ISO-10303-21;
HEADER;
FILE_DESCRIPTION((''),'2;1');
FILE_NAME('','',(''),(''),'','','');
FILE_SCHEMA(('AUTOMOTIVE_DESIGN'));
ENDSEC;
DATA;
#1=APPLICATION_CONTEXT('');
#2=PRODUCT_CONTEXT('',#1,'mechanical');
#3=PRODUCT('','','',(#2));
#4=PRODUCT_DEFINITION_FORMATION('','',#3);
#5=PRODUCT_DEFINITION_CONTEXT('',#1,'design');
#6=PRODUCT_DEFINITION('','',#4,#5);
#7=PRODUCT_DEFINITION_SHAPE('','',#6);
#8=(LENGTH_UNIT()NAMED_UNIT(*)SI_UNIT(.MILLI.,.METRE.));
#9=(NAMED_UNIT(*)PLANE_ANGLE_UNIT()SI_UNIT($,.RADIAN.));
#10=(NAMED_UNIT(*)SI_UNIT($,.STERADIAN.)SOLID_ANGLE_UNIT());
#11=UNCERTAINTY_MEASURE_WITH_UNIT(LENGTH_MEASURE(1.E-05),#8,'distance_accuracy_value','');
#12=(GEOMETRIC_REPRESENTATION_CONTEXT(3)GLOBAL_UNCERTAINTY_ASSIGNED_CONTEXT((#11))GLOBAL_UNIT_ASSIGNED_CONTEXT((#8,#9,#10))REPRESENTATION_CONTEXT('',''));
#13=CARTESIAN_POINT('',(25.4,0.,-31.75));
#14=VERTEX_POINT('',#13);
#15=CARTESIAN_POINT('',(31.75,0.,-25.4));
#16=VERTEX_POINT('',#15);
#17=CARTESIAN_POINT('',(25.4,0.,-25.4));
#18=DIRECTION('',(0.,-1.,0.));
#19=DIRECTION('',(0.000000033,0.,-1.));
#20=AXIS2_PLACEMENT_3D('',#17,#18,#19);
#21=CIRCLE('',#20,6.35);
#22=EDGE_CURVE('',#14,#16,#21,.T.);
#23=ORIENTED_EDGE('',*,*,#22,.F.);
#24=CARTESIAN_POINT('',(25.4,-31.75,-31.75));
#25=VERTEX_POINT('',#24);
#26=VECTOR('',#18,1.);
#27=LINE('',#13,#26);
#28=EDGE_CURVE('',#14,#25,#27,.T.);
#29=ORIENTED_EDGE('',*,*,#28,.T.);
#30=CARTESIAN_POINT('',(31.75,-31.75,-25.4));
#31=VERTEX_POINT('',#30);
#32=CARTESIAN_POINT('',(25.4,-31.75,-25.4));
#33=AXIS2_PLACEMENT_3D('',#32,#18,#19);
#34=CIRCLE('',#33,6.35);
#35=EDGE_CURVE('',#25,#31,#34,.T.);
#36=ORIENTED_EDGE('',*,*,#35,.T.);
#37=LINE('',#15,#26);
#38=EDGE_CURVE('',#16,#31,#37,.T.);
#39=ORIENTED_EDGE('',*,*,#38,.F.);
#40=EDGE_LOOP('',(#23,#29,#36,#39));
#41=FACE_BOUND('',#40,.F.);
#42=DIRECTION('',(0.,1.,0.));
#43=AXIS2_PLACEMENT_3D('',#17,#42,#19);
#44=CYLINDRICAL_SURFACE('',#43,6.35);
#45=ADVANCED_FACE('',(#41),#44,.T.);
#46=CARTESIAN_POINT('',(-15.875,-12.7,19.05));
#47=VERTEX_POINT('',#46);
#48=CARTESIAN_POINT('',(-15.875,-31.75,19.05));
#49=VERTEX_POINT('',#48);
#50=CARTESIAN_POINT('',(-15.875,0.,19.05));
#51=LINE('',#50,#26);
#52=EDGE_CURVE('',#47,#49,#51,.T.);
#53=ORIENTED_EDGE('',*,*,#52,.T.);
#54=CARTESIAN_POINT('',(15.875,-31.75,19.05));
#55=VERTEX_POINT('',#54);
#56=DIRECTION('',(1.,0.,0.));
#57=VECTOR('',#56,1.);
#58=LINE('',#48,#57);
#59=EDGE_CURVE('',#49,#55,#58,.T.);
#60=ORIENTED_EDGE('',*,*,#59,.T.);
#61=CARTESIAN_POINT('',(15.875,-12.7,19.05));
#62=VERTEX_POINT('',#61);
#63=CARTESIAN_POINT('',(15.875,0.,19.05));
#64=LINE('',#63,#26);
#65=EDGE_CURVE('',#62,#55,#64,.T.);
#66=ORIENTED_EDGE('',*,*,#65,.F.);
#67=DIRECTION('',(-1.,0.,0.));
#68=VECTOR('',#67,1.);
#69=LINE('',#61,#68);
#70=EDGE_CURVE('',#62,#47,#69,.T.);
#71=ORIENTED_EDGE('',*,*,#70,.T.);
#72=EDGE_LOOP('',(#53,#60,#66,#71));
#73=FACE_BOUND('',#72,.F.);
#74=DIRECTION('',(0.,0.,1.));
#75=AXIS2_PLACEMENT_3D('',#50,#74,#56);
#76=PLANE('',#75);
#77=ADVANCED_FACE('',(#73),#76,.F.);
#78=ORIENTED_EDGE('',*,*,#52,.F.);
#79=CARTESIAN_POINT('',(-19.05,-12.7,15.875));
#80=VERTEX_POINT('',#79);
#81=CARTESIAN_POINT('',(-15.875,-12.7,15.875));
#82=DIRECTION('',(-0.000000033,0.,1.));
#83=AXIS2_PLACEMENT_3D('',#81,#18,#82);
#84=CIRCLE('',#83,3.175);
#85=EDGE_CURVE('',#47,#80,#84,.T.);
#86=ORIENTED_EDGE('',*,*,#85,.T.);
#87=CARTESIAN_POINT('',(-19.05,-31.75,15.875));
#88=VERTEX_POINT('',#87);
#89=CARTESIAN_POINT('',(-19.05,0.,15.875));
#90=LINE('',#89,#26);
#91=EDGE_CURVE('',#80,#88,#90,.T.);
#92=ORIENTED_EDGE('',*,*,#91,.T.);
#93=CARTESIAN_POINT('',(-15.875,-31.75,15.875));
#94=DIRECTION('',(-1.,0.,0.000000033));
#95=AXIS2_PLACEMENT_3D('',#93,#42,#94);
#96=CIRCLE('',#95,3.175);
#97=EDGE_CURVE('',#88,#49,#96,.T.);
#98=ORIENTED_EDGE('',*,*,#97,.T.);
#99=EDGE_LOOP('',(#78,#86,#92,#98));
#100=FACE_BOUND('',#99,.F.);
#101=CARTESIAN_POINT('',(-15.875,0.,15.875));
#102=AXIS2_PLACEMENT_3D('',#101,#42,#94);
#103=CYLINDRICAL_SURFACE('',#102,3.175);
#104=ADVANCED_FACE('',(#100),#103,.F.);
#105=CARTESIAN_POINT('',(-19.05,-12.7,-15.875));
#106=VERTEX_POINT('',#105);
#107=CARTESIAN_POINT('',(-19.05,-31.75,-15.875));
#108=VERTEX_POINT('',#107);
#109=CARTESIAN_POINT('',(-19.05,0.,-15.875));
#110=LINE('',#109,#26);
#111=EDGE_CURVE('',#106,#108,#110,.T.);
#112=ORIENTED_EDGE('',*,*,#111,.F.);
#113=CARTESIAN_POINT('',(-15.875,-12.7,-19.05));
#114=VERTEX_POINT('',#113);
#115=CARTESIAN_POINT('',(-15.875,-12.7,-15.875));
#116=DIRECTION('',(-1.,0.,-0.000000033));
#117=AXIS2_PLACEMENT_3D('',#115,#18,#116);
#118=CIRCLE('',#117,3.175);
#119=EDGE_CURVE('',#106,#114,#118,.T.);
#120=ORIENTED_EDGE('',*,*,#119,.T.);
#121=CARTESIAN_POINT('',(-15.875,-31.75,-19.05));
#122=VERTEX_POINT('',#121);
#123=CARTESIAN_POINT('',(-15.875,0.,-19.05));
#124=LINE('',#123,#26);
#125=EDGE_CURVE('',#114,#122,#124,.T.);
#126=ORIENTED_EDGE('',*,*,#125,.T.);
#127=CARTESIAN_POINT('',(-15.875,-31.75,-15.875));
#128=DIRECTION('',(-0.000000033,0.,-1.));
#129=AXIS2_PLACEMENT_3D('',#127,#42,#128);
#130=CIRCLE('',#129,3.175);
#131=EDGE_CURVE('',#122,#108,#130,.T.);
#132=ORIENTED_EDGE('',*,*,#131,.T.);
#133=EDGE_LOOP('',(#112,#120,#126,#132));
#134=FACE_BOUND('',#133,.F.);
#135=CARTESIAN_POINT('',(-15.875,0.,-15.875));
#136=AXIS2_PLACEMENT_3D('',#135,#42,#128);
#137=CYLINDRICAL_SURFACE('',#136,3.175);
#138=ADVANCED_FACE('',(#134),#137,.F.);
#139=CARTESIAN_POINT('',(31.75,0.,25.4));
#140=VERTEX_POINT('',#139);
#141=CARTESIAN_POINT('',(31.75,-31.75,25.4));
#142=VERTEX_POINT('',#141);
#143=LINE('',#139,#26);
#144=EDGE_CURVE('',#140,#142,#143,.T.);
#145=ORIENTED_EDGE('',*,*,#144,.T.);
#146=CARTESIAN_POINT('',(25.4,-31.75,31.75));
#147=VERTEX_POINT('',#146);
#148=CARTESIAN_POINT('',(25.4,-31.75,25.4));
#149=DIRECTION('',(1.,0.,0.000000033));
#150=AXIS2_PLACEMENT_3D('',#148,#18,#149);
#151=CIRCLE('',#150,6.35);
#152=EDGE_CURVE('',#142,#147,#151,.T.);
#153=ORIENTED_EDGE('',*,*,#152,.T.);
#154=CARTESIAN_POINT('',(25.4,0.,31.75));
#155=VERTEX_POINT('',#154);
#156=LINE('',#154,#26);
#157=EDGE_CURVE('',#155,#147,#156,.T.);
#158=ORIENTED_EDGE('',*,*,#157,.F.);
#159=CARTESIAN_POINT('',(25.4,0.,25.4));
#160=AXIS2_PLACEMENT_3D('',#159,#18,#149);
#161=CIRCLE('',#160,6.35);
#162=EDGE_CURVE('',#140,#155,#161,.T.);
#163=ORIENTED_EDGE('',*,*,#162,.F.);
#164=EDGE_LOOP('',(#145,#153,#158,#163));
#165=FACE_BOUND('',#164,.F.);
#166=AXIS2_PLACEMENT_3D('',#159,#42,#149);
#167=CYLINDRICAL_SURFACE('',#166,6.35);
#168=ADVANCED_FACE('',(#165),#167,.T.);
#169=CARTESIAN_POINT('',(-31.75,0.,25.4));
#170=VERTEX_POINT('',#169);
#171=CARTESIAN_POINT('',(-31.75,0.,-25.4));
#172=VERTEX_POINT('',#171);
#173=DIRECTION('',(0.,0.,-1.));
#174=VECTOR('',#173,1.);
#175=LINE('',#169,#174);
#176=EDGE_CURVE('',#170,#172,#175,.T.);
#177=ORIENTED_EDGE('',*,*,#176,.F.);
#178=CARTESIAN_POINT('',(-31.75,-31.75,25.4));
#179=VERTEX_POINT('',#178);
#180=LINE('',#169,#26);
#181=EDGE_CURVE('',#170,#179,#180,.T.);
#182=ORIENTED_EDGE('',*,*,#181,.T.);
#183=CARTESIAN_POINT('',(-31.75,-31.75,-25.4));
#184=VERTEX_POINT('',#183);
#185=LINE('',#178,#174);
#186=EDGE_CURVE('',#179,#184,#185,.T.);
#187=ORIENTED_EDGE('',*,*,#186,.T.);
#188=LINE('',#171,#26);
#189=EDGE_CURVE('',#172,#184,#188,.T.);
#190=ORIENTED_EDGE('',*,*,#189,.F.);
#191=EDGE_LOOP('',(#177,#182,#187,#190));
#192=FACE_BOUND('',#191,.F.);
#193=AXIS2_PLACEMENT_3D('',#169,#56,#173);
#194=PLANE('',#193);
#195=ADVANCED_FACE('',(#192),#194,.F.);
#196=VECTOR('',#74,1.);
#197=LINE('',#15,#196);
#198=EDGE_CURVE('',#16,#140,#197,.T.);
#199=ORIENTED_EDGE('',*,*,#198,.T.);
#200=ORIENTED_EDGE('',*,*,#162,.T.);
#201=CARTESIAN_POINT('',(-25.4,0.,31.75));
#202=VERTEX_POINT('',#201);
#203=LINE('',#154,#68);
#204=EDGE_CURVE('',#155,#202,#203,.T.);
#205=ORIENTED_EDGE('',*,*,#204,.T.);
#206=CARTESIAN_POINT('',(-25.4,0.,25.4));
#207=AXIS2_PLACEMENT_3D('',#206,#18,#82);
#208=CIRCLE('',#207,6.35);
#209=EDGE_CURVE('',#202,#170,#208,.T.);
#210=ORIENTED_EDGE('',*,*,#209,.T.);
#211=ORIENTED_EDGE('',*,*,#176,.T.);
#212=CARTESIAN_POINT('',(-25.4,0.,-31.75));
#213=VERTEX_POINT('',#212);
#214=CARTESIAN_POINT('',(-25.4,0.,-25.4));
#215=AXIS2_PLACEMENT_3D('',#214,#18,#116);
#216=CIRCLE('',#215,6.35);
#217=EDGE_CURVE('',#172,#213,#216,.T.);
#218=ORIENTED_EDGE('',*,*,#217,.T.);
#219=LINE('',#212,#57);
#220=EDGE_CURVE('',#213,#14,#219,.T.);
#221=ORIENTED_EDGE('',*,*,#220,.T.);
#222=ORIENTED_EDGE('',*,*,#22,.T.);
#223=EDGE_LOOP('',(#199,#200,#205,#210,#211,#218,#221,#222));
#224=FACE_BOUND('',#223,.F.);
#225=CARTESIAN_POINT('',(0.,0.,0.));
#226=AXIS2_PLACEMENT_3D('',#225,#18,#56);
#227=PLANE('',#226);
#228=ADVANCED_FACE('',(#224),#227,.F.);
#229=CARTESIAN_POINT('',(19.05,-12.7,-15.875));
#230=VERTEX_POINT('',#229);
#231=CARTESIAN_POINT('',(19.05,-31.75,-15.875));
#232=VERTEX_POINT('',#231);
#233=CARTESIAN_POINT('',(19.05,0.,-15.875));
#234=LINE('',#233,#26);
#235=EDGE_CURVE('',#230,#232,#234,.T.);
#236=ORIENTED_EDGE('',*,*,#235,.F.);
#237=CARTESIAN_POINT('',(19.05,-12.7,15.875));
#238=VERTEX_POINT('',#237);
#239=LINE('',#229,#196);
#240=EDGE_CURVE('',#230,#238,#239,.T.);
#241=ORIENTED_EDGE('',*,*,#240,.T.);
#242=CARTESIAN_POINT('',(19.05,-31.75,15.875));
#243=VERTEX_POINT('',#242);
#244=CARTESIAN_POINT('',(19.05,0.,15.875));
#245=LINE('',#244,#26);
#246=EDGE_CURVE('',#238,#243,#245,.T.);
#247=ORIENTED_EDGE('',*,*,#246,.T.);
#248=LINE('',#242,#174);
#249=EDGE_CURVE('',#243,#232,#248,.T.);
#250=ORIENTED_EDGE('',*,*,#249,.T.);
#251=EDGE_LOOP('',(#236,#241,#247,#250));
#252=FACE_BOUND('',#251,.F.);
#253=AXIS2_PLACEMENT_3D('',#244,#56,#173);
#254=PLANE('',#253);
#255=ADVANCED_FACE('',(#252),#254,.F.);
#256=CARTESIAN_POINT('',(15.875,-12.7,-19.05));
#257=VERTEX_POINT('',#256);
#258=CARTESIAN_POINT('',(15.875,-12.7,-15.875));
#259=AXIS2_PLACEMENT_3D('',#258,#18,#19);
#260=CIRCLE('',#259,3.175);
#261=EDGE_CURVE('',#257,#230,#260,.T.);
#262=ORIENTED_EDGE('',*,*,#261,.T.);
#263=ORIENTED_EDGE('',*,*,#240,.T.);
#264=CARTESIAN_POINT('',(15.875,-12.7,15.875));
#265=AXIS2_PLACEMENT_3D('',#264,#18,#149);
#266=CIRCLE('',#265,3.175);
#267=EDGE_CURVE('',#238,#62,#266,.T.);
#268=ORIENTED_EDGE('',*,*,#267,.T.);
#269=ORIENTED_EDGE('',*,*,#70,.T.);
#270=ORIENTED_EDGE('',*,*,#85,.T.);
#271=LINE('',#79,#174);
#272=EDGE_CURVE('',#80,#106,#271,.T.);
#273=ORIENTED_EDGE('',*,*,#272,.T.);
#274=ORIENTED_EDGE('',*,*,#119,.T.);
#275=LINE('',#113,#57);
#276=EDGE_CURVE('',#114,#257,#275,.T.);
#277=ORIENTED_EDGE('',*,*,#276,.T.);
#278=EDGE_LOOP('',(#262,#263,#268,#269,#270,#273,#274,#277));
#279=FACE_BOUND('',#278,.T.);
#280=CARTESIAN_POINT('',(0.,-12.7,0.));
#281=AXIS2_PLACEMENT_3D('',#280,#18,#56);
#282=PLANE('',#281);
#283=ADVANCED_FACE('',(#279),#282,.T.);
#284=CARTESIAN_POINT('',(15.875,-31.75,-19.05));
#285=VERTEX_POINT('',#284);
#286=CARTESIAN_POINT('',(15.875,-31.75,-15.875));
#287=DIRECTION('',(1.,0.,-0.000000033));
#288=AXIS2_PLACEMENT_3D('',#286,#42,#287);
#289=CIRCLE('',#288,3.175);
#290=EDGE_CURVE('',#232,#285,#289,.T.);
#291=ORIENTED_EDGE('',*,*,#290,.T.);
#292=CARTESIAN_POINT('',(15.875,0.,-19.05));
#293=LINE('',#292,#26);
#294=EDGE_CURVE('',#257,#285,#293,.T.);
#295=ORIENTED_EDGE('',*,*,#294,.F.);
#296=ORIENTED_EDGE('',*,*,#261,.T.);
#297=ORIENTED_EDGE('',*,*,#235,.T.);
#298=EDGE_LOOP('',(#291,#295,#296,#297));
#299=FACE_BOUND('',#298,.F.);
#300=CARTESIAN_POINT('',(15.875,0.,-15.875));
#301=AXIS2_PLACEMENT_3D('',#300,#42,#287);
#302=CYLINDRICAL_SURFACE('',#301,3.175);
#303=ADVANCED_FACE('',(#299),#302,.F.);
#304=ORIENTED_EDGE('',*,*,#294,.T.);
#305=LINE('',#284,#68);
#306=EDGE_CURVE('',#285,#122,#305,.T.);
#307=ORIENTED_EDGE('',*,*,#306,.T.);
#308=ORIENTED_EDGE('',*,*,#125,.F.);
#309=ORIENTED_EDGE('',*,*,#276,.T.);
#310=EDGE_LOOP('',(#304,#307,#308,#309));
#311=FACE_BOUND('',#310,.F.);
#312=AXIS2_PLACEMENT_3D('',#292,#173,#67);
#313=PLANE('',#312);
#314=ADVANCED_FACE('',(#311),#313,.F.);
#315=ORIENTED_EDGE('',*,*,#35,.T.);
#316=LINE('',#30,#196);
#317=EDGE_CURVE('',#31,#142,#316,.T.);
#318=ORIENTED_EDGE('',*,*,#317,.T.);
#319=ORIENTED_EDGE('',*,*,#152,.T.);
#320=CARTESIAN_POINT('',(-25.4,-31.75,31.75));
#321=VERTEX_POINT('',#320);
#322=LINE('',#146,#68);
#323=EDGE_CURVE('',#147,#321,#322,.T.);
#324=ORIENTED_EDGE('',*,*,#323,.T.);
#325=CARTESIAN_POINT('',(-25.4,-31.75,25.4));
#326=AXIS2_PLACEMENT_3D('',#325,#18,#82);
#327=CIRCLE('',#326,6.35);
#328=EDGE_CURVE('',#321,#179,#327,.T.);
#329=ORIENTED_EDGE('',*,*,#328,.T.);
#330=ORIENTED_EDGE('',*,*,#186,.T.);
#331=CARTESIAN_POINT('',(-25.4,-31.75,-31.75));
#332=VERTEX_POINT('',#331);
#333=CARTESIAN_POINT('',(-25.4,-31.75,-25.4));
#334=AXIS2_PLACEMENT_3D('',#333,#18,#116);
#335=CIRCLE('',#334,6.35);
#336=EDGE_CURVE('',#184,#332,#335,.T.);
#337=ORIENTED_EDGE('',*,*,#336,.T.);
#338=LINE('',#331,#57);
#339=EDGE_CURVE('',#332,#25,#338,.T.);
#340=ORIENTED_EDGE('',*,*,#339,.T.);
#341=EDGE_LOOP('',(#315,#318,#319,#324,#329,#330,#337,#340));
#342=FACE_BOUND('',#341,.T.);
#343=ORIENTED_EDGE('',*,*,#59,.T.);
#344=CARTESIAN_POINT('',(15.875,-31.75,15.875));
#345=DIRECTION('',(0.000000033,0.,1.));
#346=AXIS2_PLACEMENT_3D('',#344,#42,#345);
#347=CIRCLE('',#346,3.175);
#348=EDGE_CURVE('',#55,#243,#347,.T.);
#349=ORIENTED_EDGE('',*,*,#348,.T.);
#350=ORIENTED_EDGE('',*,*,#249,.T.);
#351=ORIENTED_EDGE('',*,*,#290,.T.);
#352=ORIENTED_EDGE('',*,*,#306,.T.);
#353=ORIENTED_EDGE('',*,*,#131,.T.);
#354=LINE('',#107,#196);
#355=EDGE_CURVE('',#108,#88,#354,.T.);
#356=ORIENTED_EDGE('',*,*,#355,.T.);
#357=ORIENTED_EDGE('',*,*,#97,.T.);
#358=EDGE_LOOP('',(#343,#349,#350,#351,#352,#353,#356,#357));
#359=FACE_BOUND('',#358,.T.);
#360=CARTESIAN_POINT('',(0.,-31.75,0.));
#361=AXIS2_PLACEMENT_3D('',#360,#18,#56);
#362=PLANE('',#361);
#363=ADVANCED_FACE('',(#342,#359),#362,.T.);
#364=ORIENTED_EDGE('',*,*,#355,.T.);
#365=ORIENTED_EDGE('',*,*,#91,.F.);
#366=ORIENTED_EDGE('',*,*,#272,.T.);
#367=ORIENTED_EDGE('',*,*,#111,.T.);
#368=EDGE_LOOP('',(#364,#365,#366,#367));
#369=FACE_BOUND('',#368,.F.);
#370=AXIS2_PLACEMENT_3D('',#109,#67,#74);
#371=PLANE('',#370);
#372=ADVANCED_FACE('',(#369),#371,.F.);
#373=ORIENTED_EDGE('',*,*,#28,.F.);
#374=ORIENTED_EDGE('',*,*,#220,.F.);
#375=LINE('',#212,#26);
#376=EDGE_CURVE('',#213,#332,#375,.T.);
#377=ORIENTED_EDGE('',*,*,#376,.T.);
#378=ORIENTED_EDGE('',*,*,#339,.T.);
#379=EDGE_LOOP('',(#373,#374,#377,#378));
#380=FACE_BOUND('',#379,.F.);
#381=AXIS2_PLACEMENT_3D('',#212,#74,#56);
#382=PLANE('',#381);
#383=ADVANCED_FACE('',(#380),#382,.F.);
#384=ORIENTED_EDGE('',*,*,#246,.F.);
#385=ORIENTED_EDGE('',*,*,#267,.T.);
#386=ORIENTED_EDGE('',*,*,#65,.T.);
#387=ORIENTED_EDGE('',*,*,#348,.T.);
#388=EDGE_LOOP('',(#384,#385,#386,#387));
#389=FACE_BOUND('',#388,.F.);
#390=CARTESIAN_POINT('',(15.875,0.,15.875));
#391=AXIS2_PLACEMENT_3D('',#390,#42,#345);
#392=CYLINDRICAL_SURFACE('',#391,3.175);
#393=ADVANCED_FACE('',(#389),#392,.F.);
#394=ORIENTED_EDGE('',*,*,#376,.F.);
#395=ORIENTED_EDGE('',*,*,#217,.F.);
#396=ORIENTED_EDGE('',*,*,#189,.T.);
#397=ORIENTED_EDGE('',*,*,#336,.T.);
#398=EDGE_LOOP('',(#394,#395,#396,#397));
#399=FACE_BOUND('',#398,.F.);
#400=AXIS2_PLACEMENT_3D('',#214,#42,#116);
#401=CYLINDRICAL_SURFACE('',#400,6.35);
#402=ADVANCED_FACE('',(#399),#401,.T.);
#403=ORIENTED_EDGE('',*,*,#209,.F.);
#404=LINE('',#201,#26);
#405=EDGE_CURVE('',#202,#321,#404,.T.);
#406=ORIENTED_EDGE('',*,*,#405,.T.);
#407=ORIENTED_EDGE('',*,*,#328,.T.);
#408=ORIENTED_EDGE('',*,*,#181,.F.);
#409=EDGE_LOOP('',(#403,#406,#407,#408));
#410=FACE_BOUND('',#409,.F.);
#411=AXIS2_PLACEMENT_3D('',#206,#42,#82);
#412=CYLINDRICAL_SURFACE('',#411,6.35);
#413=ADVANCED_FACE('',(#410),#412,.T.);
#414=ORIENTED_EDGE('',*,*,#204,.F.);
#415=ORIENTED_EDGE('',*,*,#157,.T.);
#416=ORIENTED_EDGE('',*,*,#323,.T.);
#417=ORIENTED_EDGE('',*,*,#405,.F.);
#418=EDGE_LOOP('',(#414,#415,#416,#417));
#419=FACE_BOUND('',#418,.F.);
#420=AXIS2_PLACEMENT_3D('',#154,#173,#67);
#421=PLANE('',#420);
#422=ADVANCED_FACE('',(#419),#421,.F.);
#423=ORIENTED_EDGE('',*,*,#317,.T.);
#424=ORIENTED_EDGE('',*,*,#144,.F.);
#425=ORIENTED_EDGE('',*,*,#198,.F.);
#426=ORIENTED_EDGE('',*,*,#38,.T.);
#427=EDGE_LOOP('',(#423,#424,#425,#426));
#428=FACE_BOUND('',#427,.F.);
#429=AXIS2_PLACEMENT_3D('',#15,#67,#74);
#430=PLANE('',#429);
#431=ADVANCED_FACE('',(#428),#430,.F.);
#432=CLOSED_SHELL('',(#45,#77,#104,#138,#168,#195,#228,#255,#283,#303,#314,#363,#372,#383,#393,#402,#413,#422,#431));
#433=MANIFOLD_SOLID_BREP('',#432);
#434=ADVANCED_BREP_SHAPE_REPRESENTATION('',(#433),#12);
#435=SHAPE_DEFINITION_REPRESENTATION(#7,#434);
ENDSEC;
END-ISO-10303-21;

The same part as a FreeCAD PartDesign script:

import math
import FreeCAD as App
import Part
import Sketcher

V = App.Vector
Q = App.Units.Quantity

doc = App.newDocument("Part")
body = doc.addObject("PartDesign::Body", "Body")

# Sketch on XZ plane
sketch1 = body.newObject("Sketcher::SketchObject", "Sketch")
sketch1.AttachmentSupport = (doc.getObject("XZ_Plane"), [""])
sketch1.MapMode = "FlatFace"
sketch1.addGeometry([
    Part.LineSegment(V(-19.1, 15.9, 0), V(-19.1, -15.9, 0)),  # 0
    Part.ArcOfCircle(Part.Circle(V(-15.9, -15.9, 0), V(0, 0, 1), 3.2), math.radians(-180), math.radians(-90)),  # 1
    Part.LineSegment(V(-15.9, -19.1, 0), V(15.9, -19.1, 0)),  # 2
    Part.ArcOfCircle(Part.Circle(V(15.9, -15.9, 0), V(0, 0, 1), 3.2), math.radians(-90), math.radians(0)),  # 3
    Part.LineSegment(V(19.1, -15.9, 0), V(19.1, 15.9, 0)),  # 4
    Part.ArcOfCircle(Part.Circle(V(15.9, 15.9, 0), V(0, 0, 1), 3.2), math.radians(0), math.radians(90)),  # 5
    Part.LineSegment(V(15.9, 19.1, 0), V(-15.9, 19.1, 0)),  # 6
    Part.ArcOfCircle(Part.Circle(V(-15.9, 15.9, 0), V(0, 0, 1), 3.2), math.radians(90), math.radians(180)),  # 7
], False)
sketch1.addConstraint([
    Sketcher.Constraint("Tangent", 0, 2, 1, 1),
    Sketcher.Constraint("Tangent", 1, 2, 2, 1),
    Sketcher.Constraint("Tangent", 2, 2, 3, 1),
    Sketcher.Constraint("Tangent", 3, 2, 4, 1),
    Sketcher.Constraint("Tangent", 4, 2, 5, 1),
    Sketcher.Constraint("Tangent", 5, 2, 6, 1),
    Sketcher.Constraint("Tangent", 6, 2, 7, 1),
    Sketcher.Constraint("Tangent", 7, 2, 0, 1),
    Sketcher.Constraint("Vertical", 0),
    Sketcher.Constraint("Horizontal", 2),
    Sketcher.Constraint("Vertical", 4),
    Sketcher.Constraint("Horizontal", 6),
    Sketcher.Constraint("Equal", 1, 3),
    Sketcher.Constraint("Equal", 3, 5),
    Sketcher.Constraint("Equal", 5, 7),
    Sketcher.Constraint("Symmetric", 1, 3, 5, 3, -1, 1),
    Sketcher.Constraint("Equal", 6, 0),
    Sketcher.Constraint("Radius", 1, Q("0.125 in")),
    Sketcher.Constraint("DistanceX", 2, 1, 2, 2, Q("1.25 in")),
])
pad1 = body.newObject("PartDesign::Pad", "Pad")
pad1.Profile = sketch1
pad1.Length = Q("0.5 in")

# Sketch on XZ plane
sketch2 = body.newObject("Sketcher::SketchObject", "Sketch001")
sketch2.AttachmentSupport = (doc.getObject("XZ_Plane"), [""])
sketch2.MapMode = "FlatFace"
sketch2.addGeometry([
    Part.LineSegment(V(-25.4, -31.8, 0), V(25.4, -31.8, 0)),  # 0
    Part.ArcOfCircle(Part.Circle(V(25.4, -25.4, 0), V(0, 0, 1), 6.4), math.radians(-90), math.radians(0)),  # 1
    Part.LineSegment(V(31.8, -25.4, 0), V(31.8, 25.4, 0)),  # 2
    Part.ArcOfCircle(Part.Circle(V(25.4, 25.4, 0), V(0, 0, 1), 6.4), math.radians(0), math.radians(90)),  # 3
    Part.LineSegment(V(25.4, 31.8, 0), V(-25.4, 31.8, 0)),  # 4
    Part.ArcOfCircle(Part.Circle(V(-25.4, 25.4, 0), V(0, 0, 1), 6.4), math.radians(90), math.radians(180)),  # 5
    Part.LineSegment(V(-31.8, 25.4, 0), V(-31.8, -25.4, 0)),  # 6
    Part.ArcOfCircle(Part.Circle(V(-25.4, -25.4, 0), V(0, 0, 1), 6.4), math.radians(-180), math.radians(-90)),  # 7
    Part.LineSegment(V(15.9, -19.1, 0), V(-15.9, -19.1, 0)),  # 8
    Part.ArcOfCircle(Part.Circle(V(-15.9, -15.9, 0), V(0, 0, 1), 3.2), math.radians(-180), math.radians(-90)),  # 9
    Part.LineSegment(V(-19.1, -15.9, 0), V(-19.1, 15.9, 0)),  # 10
    Part.ArcOfCircle(Part.Circle(V(-15.9, 15.9, 0), V(0, 0, 1), 3.2), math.radians(90), math.radians(180)),  # 11
    Part.LineSegment(V(-15.9, 19.1, 0), V(15.9, 19.1, 0)),  # 12
    Part.ArcOfCircle(Part.Circle(V(15.9, 15.9, 0), V(0, 0, 1), 3.2), math.radians(0), math.radians(90)),  # 13
    Part.LineSegment(V(19.1, 15.9, 0), V(19.1, -15.9, 0)),  # 14
    Part.ArcOfCircle(Part.Circle(V(15.9, -15.9, 0), V(0, 0, 1), 3.2), math.radians(-90), math.radians(0)),  # 15
], False)
sketch2.addConstraint([
    Sketcher.Constraint("Tangent", 0, 2, 1, 1),
    Sketcher.Constraint("Tangent", 1, 2, 2, 1),
    Sketcher.Constraint("Tangent", 2, 2, 3, 1),
    Sketcher.Constraint("Tangent", 3, 2, 4, 1),
    Sketcher.Constraint("Tangent", 4, 2, 5, 1),
    Sketcher.Constraint("Tangent", 5, 2, 6, 1),
    Sketcher.Constraint("Tangent", 6, 2, 7, 1),
    Sketcher.Constraint("Tangent", 7, 2, 0, 1),
    Sketcher.Constraint("Tangent", 8, 2, 9, 2),
    Sketcher.Constraint("Tangent", 9, 1, 10, 1),
    Sketcher.Constraint("Tangent", 10, 2, 11, 2),
    Sketcher.Constraint("Tangent", 11, 1, 12, 1),
    Sketcher.Constraint("Tangent", 12, 2, 13, 2),
    Sketcher.Constraint("Tangent", 13, 1, 14, 1),
    Sketcher.Constraint("Tangent", 14, 2, 15, 2),
    Sketcher.Constraint("Tangent", 15, 1, 8, 1),
    Sketcher.Constraint("Horizontal", 0),
    Sketcher.Constraint("Vertical", 2),
    Sketcher.Constraint("Horizontal", 4),
    Sketcher.Constraint("Vertical", 6),
    Sketcher.Constraint("Horizontal", 8),
    Sketcher.Constraint("Vertical", 10),
    Sketcher.Constraint("Horizontal", 12),
    Sketcher.Constraint("Vertical", 14),
    Sketcher.Constraint("Equal", 1, 3),
    Sketcher.Constraint("Equal", 3, 5),
    Sketcher.Constraint("Equal", 5, 7),
    Sketcher.Constraint("Equal", 9, 11),
    Sketcher.Constraint("Equal", 11, 13),
    Sketcher.Constraint("Equal", 13, 15),
    Sketcher.Constraint("Symmetric", 1, 3, 5, 3, -1, 1),
    Sketcher.Constraint("Symmetric", 9, 3, 13, 3, -1, 1),
    Sketcher.Constraint("Equal", 4, 2),
    Sketcher.Constraint("Equal", 12, 10),
    Sketcher.Constraint("DistanceX", 0, 1, 0, 2, Q("2 in")),
    Sketcher.Constraint("Radius", 1, Q("0.25 in")),
    Sketcher.Constraint("Radius", 9, Q("0.125 in")),
    Sketcher.Constraint("DistanceX", 8, 2, 8, 1, Q("1.25 in")),
])
pad2 = body.newObject("PartDesign::Pad", "Pad001")
pad2.Profile = sketch2
pad2.Length = Q("1.25 in")

doc.recompute()
